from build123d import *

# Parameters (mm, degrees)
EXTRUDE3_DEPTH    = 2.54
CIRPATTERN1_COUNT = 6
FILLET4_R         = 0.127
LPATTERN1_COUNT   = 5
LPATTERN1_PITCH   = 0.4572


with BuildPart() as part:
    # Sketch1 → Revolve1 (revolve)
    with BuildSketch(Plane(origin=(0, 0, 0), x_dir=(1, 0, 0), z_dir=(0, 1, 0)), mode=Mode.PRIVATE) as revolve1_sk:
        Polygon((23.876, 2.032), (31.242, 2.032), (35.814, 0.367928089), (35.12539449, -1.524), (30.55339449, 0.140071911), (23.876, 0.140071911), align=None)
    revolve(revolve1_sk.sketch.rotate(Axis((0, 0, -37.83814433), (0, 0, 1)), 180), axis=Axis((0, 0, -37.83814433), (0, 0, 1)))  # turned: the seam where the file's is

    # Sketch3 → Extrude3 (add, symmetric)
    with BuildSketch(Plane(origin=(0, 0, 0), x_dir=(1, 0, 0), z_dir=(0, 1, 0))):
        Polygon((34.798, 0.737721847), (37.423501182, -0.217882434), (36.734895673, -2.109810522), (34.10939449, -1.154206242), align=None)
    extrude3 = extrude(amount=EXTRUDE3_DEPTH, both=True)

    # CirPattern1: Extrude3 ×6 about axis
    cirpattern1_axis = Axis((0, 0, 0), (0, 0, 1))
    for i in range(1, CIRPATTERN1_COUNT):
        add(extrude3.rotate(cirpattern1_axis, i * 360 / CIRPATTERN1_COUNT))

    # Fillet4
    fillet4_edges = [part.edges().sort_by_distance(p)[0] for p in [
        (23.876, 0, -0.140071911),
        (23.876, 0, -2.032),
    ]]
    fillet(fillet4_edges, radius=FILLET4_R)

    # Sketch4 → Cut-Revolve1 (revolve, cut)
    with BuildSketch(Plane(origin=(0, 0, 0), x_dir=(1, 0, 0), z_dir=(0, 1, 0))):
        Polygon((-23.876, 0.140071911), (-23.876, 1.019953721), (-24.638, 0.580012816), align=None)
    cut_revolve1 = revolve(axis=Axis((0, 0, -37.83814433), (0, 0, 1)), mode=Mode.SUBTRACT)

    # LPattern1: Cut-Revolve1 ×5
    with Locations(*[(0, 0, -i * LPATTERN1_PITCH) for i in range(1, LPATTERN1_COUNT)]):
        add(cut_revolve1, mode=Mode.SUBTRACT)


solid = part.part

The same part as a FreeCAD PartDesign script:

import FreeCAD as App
import Part
import Sketcher

V = App.Vector
Q = App.Units.Quantity


def edges_at(feature, points):
    """Names of the edges that pass closest to the given points."""
    edges = feature.Shape.Edges
    near = lambda p: min(range(len(edges)), key=lambda i: edges[i].distToShape(Part.Vertex(*p))[0])
    return sorted({f"Edge{near(p) + 1}" for p in points})

doc = App.newDocument("Part")
body = doc.addObject("PartDesign::Body", "Body")

sketch1 = body.newObject("Sketcher::SketchObject", "Sketch")
sketch1.AttachmentSupport = (doc.getObject("XZ_Plane"), [""])
sketch1.MapMode = "FlatFace"
sketch1.addGeometry(Part.LineSegment(V(31.2, -2, 0), V(23.9, -2, 0)), False)
sketch1.addGeometry(Part.LineSegment(V(23.9, -2, 0), V(23.9, -0.1, 0)), False)
sketch1.addGeometry(Part.LineSegment(V(23.9, -0.1, 0), V(30.6, -0.1, 0)), False)
sketch1.addGeometry(Part.LineSegment(V(30.6, -0.1, 0), V(35.1, 1.5, 0)), False)
sketch1.addGeometry(Part.LineSegment(V(35.1, 1.5, 0), V(35.8, -0.4, 0)), False)
sketch1.addGeometry(Part.LineSegment(V(35.8, -0.4, 0), V(31.2, -2, 0)), False)
sketch1.addConstraint(Sketcher.Constraint("Coincident", 0, 2, 1, 1))
sketch1.addConstraint(Sketcher.Constraint("Coincident", 1, 2, 2, 1))
sketch1.addConstraint(Sketcher.Constraint("Coincident", 2, 2, 3, 1))
sketch1.addConstraint(Sketcher.Constraint("Coincident", 3, 2, 4, 1))
sketch1.addConstraint(Sketcher.Constraint("Coincident", 4, 2, 5, 1))
sketch1.addConstraint(Sketcher.Constraint("Coincident", 5, 2, 0, 1))
sketch1.addConstraint(Sketcher.Constraint("Horizontal", 0))
sketch1.addConstraint(Sketcher.Constraint("Vertical", 1))
sketch1.addConstraint(Sketcher.Constraint("Horizontal", 2))
sketch1.addConstraint(Sketcher.Constraint("Perpendicular", 3, 4))
sketch1.addConstraint(Sketcher.Constraint("Perpendicular", 4, 5))
sketch1.addConstraint(Sketcher.Constraint("Equal", 3, 5))
sketch1.addConstraint(Sketcher.Constraint("Angle", 3, Q("20 deg")))
sketch1.addConstraint(Sketcher.Constraint("DistanceX", 0, 2, 0, 1, Q("0.29 in")))
sketch1.addConstraint(Sketcher.Constraint("DistanceX", -1, 1, 0, 2, Q("0.94 in")))
sketch1.addConstraint(Sketcher.Constraint("DistanceY", 0, 2, -1, 1, Q("0.08 in")))
sketch1.addConstraint(Sketcher.Constraint("DistanceY", -1, 1, 3, 2, Q("0.06 in")))
sketch1.addConstraint(Sketcher.Constraint("DistanceX", -1, 1, 4, 2, Q("1.41 in")))
revolution = body.newObject("PartDesign::Revolution", "Revolution")
revolution.Profile = sketch1
revolution.ReferenceAxis = (sketch1, ["V_Axis"])
revolution.Angle = 360

sketch2 = body.newObject("Sketcher::SketchObject", "Sketch001")
sketch2.AttachmentSupport = (doc.getObject("XZ_Plane"), [""])
sketch2.MapMode = "FlatFace"
sketch2.addGeometry(Part.LineSegment(V(37.4, 0.2, 0), V(34.8, -0.7, 0)), False)
sketch2.addGeometry(Part.LineSegment(V(34.8, -0.7, 0), V(34.1, 1.2, 0)), False)
sketch2.addGeometry(Part.LineSegment(V(34.1, 1.2, 0), V(36.7, 2.1, 0)), False)
sketch2.addGeometry(Part.LineSegment(V(36.7, 2.1, 0), V(37.4, 0.2, 0)), False)
sketch2.addConstraint(Sketcher.Constraint("Coincident", 0, 2, 1, 1))
sketch2.addConstraint(Sketcher.Constraint("Coincident", 1, 2, 2, 1))
sketch2.addConstraint(Sketcher.Constraint("Coincident", 2, 2, 3, 1))
sketch2.addConstraint(Sketcher.Constraint("Coincident", 3, 2, 0, 1))
sketch2.addConstraint(Sketcher.Constraint("Perpendicular", 0, 1))
sketch2.addConstraint(Sketcher.Constraint("Perpendicular", 1, 2))
sketch2.addConstraint(Sketcher.Constraint("Perpendicular", 2, 3))
sketch2.addConstraint(Sketcher.Constraint("Angle", 0, Q("-160 deg")))
sketch2.addConstraint(Sketcher.Constraint("Distance", 0, Q("0.11 in")))
sketch2.addConstraint(Sketcher.Constraint("DistanceX", -1, 1, 0, 2, Q("1.37 in")))
sketch2.addConstraint(Sketcher.Constraint("DistanceY", 0, 2, -1, 1, Q("0.737722 mm")))
sketch2.addConstraint(Sketcher.Constraint("DistanceY", -1, 1, 2, 2, Q("2.109811 mm")))
pad1 = body.newObject("PartDesign::Pad", "Pad")
pad1.Profile = sketch2
pad1.Length = Q("0.2 in")
pad1.Midplane = True
doc.recompute()

polarpattern = body.newObject("PartDesign::PolarPattern", "PolarPattern")
polarpattern.Originals = [pad1]
polarpattern.Axis = (doc.getObject("Z_Axis"), [""])
polarpattern.Angle = 360
polarpattern.Occurrences = 6
body.Tip = polarpattern
doc.recompute()

fillet = body.newObject("PartDesign::Fillet", "Fillet")
fillet.Base = (polarpattern, edges_at(polarpattern, [(23.876, 0, -0.14), (23.876, 0, -2.032)]))
fillet.Radius = Q("0.005 in")

sketch3 = body.newObject("Sketcher::SketchObject", "Sketch002")
sketch3.AttachmentSupport = (doc.getObject("XZ_Plane"), [""])
sketch3.MapMode = "FlatFace"
sketch3.addGeometry(Part.LineSegment(V(-23.9, -0.1, 0), V(-23.9, -1, 0)), False)
sketch3.addGeometry(Part.LineSegment(V(-23.9, -1, 0), V(-24.6, -0.6, 0)), False)
sketch3.addGeometry(Part.LineSegment(V(-24.6, -0.6, 0), V(-23.9, -0.1, 0)), False)
sketch3.addConstraint(Sketcher.Constraint("Coincident", 0, 2, 1, 1))
sketch3.addConstraint(Sketcher.Constraint("Coincident", 1, 2, 2, 1))
sketch3.addConstraint(Sketcher.Constraint("Coincident", 2, 2, 0, 1))
sketch3.addConstraint(Sketcher.Constraint("Vertical", 0))
sketch3.addConstraint(Sketcher.Constraint("Equal", 1, 2))
sketch3.addConstraint(Sketcher.Constraint("Angle", 1, Q("150 deg")))
sketch3.addConstraint(Sketcher.Constraint("DistanceX", 0, 2, -1, 1, Q("0.94 in")))
sketch3.addConstraint(Sketcher.Constraint("DistanceX", 1, 2, -1, 1, Q("0.97 in")))
sketch3.addConstraint(Sketcher.Constraint("DistanceY", 2, 2, -1, 1, Q("0.140072 mm")))
groove = body.newObject("PartDesign::Groove", "Groove")
groove.Profile = sketch3
groove.ReferenceAxis = (sketch3, ["V_Axis"])
groove.Angle = 360
doc.recompute()

linearpattern = body.newObject("PartDesign::LinearPattern", "LinearPattern")
linearpattern.Originals = [groove]
linearpattern.Direction = (doc.getObject("Z_Axis"), [""])
linearpattern.Mode = "offset"
linearpattern.Offset = Q("0.018 in")
linearpattern.Occurrences = 5
linearpattern.Reversed = True
body.Tip = linearpattern

doc.recompute()
